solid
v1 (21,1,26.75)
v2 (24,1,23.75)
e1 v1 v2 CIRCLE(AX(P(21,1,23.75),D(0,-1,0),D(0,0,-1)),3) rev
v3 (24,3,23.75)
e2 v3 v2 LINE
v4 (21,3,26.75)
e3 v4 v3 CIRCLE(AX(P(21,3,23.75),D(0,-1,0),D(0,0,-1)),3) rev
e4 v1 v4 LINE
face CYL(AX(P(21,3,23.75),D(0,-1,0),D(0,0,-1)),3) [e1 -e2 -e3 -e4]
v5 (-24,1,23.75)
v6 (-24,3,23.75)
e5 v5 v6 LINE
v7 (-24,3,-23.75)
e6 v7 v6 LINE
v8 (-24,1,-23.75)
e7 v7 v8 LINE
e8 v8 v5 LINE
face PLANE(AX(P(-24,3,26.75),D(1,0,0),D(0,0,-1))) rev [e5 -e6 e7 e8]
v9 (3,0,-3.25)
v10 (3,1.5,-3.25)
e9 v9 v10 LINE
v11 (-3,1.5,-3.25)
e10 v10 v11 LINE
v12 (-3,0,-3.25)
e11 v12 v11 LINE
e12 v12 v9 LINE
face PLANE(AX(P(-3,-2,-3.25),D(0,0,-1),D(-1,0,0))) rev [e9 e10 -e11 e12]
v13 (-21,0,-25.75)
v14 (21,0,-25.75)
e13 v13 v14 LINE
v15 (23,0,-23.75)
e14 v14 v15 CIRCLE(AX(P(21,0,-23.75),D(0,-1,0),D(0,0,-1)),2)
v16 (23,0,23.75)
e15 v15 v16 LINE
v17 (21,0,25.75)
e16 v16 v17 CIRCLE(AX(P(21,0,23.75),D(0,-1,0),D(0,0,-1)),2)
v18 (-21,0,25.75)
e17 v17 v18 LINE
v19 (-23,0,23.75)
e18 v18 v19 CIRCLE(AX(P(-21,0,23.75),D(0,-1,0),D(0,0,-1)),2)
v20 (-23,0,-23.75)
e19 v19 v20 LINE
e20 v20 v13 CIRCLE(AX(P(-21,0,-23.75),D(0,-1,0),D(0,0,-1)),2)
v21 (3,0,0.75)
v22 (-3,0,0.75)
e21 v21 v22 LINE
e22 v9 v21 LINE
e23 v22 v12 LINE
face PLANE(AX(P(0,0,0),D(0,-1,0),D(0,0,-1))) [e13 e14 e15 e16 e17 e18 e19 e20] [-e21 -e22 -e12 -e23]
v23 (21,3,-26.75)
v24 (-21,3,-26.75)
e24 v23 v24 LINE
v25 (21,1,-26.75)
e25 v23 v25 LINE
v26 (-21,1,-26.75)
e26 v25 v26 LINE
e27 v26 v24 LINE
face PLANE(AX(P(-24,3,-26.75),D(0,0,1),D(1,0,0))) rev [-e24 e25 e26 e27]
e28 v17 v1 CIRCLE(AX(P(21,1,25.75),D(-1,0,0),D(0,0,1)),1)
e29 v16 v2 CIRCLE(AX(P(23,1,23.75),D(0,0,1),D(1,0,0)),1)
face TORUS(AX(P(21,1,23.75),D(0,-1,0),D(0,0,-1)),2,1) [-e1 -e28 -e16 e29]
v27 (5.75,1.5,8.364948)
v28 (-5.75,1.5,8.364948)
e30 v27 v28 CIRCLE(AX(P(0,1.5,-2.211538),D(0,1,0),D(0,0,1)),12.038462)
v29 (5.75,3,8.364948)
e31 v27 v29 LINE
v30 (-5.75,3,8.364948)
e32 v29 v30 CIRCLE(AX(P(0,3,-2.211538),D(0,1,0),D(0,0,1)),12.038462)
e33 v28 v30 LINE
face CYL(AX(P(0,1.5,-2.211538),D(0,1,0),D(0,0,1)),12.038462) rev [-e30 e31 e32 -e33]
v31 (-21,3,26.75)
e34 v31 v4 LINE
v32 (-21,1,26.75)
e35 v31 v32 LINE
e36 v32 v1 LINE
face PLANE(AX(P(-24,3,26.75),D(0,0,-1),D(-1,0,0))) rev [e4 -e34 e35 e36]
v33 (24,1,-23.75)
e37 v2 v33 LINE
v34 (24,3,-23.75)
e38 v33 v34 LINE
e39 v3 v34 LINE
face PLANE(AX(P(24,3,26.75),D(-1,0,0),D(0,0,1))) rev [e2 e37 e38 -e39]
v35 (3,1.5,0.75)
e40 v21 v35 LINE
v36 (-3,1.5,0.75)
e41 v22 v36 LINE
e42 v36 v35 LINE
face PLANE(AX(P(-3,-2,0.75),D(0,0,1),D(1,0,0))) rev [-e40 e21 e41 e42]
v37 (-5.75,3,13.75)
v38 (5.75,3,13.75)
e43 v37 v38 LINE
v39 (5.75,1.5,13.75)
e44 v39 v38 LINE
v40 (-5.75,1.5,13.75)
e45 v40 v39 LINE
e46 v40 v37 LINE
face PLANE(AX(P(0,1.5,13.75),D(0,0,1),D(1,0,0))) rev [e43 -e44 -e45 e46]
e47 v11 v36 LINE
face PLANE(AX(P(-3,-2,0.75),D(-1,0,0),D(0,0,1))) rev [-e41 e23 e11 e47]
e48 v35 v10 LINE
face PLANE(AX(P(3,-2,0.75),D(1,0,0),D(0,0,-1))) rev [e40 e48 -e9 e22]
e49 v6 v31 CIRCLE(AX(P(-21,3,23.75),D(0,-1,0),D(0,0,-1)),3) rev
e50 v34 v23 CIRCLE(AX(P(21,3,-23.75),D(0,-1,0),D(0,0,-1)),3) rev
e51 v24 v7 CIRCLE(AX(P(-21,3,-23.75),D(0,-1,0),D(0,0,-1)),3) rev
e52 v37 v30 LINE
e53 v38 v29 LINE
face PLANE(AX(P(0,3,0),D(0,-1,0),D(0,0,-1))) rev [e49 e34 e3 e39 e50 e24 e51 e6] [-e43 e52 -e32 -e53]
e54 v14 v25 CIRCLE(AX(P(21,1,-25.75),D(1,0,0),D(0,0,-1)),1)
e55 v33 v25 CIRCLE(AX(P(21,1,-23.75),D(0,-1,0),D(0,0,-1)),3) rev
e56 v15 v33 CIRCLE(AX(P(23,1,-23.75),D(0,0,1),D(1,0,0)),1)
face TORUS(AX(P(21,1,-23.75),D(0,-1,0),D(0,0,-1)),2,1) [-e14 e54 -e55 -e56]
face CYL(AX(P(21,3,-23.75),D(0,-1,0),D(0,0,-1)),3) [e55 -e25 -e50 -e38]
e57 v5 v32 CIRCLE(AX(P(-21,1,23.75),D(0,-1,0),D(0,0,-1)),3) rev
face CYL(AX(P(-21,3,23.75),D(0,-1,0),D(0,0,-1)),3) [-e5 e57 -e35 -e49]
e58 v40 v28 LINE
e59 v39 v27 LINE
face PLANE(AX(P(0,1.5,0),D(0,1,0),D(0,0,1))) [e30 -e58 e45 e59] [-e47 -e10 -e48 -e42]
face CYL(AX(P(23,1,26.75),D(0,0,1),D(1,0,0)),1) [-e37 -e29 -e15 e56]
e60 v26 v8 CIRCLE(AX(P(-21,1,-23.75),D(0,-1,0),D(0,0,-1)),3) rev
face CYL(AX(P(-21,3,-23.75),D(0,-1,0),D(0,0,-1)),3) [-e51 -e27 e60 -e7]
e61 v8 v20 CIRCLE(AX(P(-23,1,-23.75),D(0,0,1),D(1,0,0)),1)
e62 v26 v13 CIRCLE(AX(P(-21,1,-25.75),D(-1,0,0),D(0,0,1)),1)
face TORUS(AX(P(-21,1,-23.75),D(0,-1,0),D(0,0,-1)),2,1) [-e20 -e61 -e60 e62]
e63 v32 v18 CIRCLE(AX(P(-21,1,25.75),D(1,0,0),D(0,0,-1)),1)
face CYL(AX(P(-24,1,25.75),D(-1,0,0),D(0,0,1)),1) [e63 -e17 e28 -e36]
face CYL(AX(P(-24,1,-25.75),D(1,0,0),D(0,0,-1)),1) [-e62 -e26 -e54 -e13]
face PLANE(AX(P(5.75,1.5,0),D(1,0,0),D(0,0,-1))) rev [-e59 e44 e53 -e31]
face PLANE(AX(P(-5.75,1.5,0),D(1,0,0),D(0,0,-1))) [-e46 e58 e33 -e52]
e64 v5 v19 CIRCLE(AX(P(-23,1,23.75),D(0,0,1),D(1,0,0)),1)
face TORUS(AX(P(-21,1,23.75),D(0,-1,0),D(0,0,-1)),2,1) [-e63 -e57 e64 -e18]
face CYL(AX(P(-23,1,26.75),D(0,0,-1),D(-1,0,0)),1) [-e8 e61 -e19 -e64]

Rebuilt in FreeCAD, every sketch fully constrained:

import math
import FreeCAD as App
import Part
import Sketcher

V = App.Vector
Q = App.Units.Quantity


def edges_at(feature, points):
    """Names of the edges that pass closest to the given points."""
    edges = feature.Shape.Edges
    near = lambda p: min(range(len(edges)), key=lambda i: edges[i].distToShape(Part.Vertex(*p))[0])
    return sorted({f"Edge{near(p) + 1}" for p in points})


def add_polygon(sketch, points):
    """Adds a closed chain of lines whose ends are joined by coincident constraints."""
    first, n = sketch.GeometryCount, len(points)
    for a, b in zip(points, points[1:] + points[:1]):
        sketch.addGeometry(Part.LineSegment(App.Vector(*a, 0), App.Vector(*b, 0)), False)
    for i in range(n):
        sketch.addConstraint(Sketcher.Constraint("Coincident", first + i, 2, first + (i + 1) % n, 1))

doc = App.newDocument("Part")
body = doc.addObject("PartDesign::Body", "Body")

# Sketch on XZ plane
sketch1 = body.newObject("Sketcher::SketchObject", "Sketch")
sketch1.AttachmentSupport = (doc.getObject("XZ_Plane"), [""])
sketch1.MapMode = "FlatFace"
add_polygon(sketch1, [(-21, -24), (-21, 24), (21, 24), (21, -24)])  # lines 0-3
sketch1.addConstraint([
    Sketcher.Constraint("Vertical", 0),
    Sketcher.Constraint("Horizontal", 1),
    Sketcher.Constraint("Vertical", 2),
    Sketcher.Constraint("Horizontal", 3),
    Sketcher.Constraint("Symmetric", 0, 2, 2, 2, -1, 1),
    Sketcher.Constraint("DistanceX", 1, 1, 1, 2, Q("42 mm")),
    Sketcher.Constraint("DistanceY", 0, 1, 0, 2, Q("47.5 mm")),
])
pad1 = body.newObject("PartDesign::Pad", "Pad")
pad1.Profile = sketch1
pad1.Length = 3
pad1.Reversed = True

# Sketch on XZ plane
sketch2 = body.newObject("Sketcher::SketchObject", "Sketch001")
sketch2.AttachmentSupport = (doc.getObject("XZ_Plane"), [""])
sketch2.MapMode = "FlatFace"
sketch2.AttachmentOffset = App.Placement(V(0, 0, -3), App.Rotation())
sketch2.addGeometry([
    Part.ArcOfCircle(Part.Circle(V(0, -2, 0), V(0, 0, 1), 12), math.radians(119), math.radians(360)),  # 0
    Part.LineSegment(V(-6, 8, 0), V(-6, 14, 0)),  # 1
    Part.LineSegment(V(-6, 14, 0), V(6, 14, 0)),  # 2
    Part.LineSegment(V(6, 14, 0), V(6, 8, 0)),  # 3
    Part.ArcOfCircle(Part.Circle(V(0, -2, 0), V(0, 0, 1), 12), math.radians(0), math.radians(61)),  # 4
], False)
sketch2.addConstraint([
    Sketcher.Constraint("Coincident", 0, 1, 1, 1),
    Sketcher.Constraint("Coincident", 1, 2, 2, 1),
    Sketcher.Constraint("Coincident", 2, 2, 3, 1),
    Sketcher.Constraint("Coincident", 3, 2, 4, 2),
    Sketcher.Constraint("Tangent", 4, 1, 0, 2),
    Sketcher.Constraint("Vertical", 1),
    Sketcher.Constraint("Horizontal", 2),
    Sketcher.Constraint("Vertical", 3),
    Sketcher.Constraint("Equal", 0, 4),
    Sketcher.Constraint("Symmetric", 0, 1, 3, 2, -2),
    Sketcher.Constraint("Horizontal", 0, 3, 4, 1),
    Sketcher.Constraint("DistanceX", 2, 1, 2, 2, Q("11.5 mm")),
    Sketcher.Constraint("DistanceY", -1, 1, 1, 2, Q("13.75 mm")),
    Sketcher.Constraint("Radius", 0, Q("12.038462 mm")),
    Sketcher.Constraint("DistanceY", 1, 1, 1, 2, Q("5.385052 mm")),
])
pocket1 = body.newObject("PartDesign::Pocket", "Pocket")
pocket1.Profile = sketch2
pocket1.Length = 1.5
pocket1.Reversed = True

# Sketch on XZ plane
sketch3 = body.newObject("Sketcher::SketchObject", "Sketch002")
sketch3.AttachmentSupport = (doc.getObject("XZ_Plane"), [""])
sketch3.MapMode = "FlatFace"
sketch3.AttachmentOffset = App.Placement(V(0, 0, -3), App.Rotation())
add_polygon(sketch3, [(-3, -3.2), (-3, 0.8), (3, 0.8), (3, -3.2)])  # lines 0-3
sketch3.addConstraint([
    Sketcher.Constraint("Vertical", 0),
    Sketcher.Constraint("Horizontal", 1),
    Sketcher.Constraint("Vertical", 2),
    Sketcher.Constraint("Horizontal", 3),
    Sketcher.Constraint("DistanceX", 1, 1, 1, 2, Q("6 mm")),
    Sketcher.Constraint("DistanceY", 0, 1, 0, 2, Q("4 mm")),
    Sketcher.Constraint("DistanceX", 0, 2, -1, 1, Q("3 mm")),
    Sketcher.Constraint("DistanceY", -1, 1, 0, 2, Q("0.75 mm")),
])
pocket2 = body.newObject("PartDesign::Pocket", "Pocket001")
pocket2.Profile = sketch3
pocket2.Length = 5
pocket2.Reversed = True

# Sketch on XZ plane
sketch4 = body.newObject("Sketcher::SketchObject", "Sketch003")
sketch4.AttachmentSupport = (doc.getObject("XZ_Plane"), [""])
sketch4.MapMode = "FlatFace"
add_polygon(sketch4, [(-24, -27), (-24, 27), (24, 27), (24, -27)])  # lines 0-3
add_polygon(sketch4, [(21, 24), (-21, 24), (-21, -24), (21, -24)])  # lines 4-7
sketch4.addConstraint([
    Sketcher.Constraint("Vertical", 0),
    Sketcher.Constraint("Horizontal", 1),
    Sketcher.Constraint("Vertical", 2),
    Sketcher.Constraint("Horizontal", 3),
    Sketcher.Constraint("Horizontal", 4),
    Sketcher.Constraint("Vertical", 5),
    Sketcher.Constraint("Horizontal", 6),
    Sketcher.Constraint("Vertical", 7),
    Sketcher.Constraint("Symmetric", 0, 2, 2, 2, -1, 1),
    Sketcher.Constraint("Symmetric", 4, 2, 6, 2, -1, 1),
    Sketcher.Constraint("DistanceX", 1, 1, 1, 2, Q("48 mm")),
    Sketcher.Constraint("DistanceX", 4, 2, 4, 1, Q("42 mm")),
    Sketcher.Constraint("DistanceY", 0, 1, 0, 2, Q("53.5 mm")),
    Sketcher.Constraint("DistanceY", 5, 2, 5, 1, Q("47.5 mm")),
])
pad2 = body.newObject("PartDesign::Pad", "Pad001")
pad2.Profile = sketch4
pad2.Length = 3
pad2.Reversed = True
doc.recompute()

fillet = body.newObject("PartDesign::Fillet", "Fillet")
fillet.Base = (pad2, edges_at(pad2, [
    (-24, 1.5, -26.75),
    (-24, 1.5, 26.75),
    (24, 1.5, 26.75),
    (24, 1.5, -26.75),
]))
fillet.Radius = 3
doc.recompute()

fillet2 = body.newObject("PartDesign::Fillet", "Fillet001")
fillet2.Base = (fillet, edges_at(fillet, [
    (-24, 0, 0),
    (0, 0, -26.75),
    (24, 0, 0),
    (0, 0, 26.75),
    (-23.121, 0, 25.871),
    (23.121, 0, 25.871),
    (23.121, 0, -25.871),
    (-23.121, 0, -25.871),
]))
fillet2.Radius = 1

doc.recompute()
